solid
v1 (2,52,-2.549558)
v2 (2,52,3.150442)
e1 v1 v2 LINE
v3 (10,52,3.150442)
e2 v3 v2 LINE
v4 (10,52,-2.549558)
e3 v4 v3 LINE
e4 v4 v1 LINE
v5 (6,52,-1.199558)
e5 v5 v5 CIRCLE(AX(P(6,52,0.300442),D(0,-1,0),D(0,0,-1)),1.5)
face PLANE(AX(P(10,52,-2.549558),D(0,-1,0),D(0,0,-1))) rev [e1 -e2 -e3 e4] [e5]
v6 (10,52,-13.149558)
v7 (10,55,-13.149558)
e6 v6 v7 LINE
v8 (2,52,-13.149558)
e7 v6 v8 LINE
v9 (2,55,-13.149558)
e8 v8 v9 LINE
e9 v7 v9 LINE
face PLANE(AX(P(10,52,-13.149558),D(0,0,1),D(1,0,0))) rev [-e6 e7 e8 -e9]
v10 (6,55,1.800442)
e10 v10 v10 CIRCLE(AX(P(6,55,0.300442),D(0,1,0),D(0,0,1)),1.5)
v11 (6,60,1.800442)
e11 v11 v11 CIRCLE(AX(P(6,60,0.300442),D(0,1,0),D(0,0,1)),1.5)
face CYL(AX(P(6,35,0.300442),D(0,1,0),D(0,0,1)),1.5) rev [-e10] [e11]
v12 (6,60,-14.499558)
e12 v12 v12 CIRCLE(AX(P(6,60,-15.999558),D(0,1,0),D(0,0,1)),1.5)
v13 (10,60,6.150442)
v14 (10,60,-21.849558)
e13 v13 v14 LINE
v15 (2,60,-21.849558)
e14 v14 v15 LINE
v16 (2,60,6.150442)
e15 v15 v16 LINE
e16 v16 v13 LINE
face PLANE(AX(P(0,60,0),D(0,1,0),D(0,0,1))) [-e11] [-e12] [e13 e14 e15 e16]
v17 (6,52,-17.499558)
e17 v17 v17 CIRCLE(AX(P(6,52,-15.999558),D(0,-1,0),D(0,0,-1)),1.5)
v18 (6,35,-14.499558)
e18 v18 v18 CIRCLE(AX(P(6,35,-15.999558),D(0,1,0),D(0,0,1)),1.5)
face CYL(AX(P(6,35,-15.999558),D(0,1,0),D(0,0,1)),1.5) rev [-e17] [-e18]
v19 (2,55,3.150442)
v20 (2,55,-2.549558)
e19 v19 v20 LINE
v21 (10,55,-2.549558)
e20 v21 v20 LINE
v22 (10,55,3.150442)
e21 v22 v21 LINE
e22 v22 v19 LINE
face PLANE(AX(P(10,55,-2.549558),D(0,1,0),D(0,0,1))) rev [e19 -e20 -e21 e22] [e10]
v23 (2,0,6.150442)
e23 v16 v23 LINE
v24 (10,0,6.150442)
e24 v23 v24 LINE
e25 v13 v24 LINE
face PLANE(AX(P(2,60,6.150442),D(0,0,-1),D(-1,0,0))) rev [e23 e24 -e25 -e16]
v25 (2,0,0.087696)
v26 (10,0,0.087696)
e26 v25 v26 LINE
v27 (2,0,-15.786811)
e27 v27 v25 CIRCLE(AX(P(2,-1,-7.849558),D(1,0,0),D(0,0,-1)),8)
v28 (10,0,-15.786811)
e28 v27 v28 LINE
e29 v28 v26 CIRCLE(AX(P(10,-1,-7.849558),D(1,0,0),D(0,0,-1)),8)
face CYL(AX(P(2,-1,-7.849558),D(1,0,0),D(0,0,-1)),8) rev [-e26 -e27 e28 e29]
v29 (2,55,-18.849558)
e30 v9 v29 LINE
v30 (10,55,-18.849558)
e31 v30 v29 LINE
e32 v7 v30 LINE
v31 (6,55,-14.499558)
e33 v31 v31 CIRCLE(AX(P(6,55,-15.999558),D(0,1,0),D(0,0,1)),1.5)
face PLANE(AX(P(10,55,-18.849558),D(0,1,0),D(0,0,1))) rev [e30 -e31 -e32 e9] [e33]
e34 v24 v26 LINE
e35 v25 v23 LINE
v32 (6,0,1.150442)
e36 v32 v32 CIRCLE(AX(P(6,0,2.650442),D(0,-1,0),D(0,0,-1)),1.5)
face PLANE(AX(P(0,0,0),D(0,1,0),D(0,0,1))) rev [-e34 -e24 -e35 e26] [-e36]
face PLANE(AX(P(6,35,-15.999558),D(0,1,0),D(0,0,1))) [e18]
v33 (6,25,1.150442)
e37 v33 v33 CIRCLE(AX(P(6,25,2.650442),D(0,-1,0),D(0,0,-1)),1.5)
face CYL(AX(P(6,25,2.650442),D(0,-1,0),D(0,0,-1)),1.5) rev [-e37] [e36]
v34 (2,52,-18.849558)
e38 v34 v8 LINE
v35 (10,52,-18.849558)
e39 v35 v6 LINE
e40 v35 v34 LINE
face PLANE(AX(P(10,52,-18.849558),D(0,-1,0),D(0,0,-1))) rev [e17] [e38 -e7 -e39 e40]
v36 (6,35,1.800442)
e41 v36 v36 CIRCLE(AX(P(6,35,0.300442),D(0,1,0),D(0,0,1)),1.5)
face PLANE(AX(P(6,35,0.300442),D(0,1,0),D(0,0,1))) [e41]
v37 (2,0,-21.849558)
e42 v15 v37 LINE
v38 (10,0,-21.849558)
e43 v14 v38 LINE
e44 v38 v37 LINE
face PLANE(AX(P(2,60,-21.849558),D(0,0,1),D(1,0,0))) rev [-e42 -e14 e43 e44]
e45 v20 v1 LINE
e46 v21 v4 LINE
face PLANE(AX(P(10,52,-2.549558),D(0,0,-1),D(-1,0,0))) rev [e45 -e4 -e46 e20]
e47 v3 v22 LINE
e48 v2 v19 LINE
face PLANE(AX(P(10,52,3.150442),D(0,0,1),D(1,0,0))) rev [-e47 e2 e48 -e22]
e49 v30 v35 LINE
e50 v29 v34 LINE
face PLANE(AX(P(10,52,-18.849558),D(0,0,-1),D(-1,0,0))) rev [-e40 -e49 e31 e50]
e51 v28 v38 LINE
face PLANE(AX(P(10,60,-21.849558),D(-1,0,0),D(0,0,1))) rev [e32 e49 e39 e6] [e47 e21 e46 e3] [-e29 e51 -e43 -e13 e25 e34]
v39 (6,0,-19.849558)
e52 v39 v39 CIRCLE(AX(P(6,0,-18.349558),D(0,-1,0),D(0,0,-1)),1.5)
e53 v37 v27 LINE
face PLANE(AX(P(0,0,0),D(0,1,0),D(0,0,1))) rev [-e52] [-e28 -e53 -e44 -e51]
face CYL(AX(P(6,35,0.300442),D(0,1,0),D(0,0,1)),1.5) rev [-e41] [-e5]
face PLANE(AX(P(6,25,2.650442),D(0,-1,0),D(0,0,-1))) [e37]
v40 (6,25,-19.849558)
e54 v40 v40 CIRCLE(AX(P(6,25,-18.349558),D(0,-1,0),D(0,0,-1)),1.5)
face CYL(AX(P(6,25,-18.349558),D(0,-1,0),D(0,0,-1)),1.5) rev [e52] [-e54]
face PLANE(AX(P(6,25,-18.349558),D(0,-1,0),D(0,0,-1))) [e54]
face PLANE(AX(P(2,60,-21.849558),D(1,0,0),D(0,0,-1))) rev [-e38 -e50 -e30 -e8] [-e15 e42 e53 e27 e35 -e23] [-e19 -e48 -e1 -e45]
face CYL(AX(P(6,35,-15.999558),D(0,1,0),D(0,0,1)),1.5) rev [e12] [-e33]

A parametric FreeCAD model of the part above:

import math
import FreeCAD as App
import Part
import Sketcher

doc = App.newDocument("Part")
params = doc.addObject("Spreadsheet::Sheet", "Params")
for row, (alias, value) in enumerate([
    ("sketch1_width", "8 mm"),
    ("sketch1_height", "28 mm"),
    ("pad1_length", "60 mm"),
    ("sketch2_radius", "8 mm"),
    ("sketch3_diameter", "3 mm"),
    ("pocket2_length", "25 mm"),
    ("sketch4_width", "3 mm"),
    ("sketch4_height", "5.7 mm"),
    ("sketch5_diameter", "3 mm"),
    ("pocket4_length", "25 mm"),
], start=1):
    params.set(f"A{row}", alias)
    params.set(f"B{row}", "=" + value)
    params.setAlias(f"B{row}", alias)

body = doc.addObject("PartDesign::Body", "Body")

# Sketch on XZ plane
sketch1 = body.newObject("Sketcher::SketchObject", "Sketch")
sketch1.AttachmentSupport = (doc.getObject("XZ_Plane"), [""])
sketch1.MapMode = "FlatFace"
sketch1.addGeometry([
    Part.LineSegment(App.Vector(2, -22, 0), App.Vector(2, 6, 0)),
    Part.LineSegment(App.Vector(2, 6, 0), App.Vector(10, 6, 0)),
    Part.LineSegment(App.Vector(10, 6, 0), App.Vector(10, -22, 0)),
    Part.LineSegment(App.Vector(10, -22, 0), App.Vector(2, -22, 0)),
], False)
sketch1.addConstraint([
    Sketcher.Constraint("Coincident", 0, 2, 1, 1),
    Sketcher.Constraint("Coincident", 1, 2, 2, 1),
    Sketcher.Constraint("Coincident", 2, 2, 3, 1),
    Sketcher.Constraint("Coincident", 3, 2, 0, 1),
    Sketcher.Constraint("Vertical", 0),
    Sketcher.Constraint("Horizontal", 1),
    Sketcher.Constraint("Vertical", 2),
    Sketcher.Constraint("Horizontal", 3),
    Sketcher.Constraint("DistanceX", 1, 1, 1, 2, 8.0),
    Sketcher.Constraint("DistanceY", 0, 1, 0, 2, 28.0),
    Sketcher.Constraint("DistanceX", -1, 1, 0, 2, 2.0),
    Sketcher.Constraint("DistanceY", -1, 1, 0, 2, 6.150442),
])
sketch1.setExpression("Constraints[8]", "Params.sketch1_width")
sketch1.setExpression("Constraints[9]", "Params.sketch1_height")
pad1 = body.newObject("PartDesign::Pad", "Pad")
pad1.Profile = sketch1
pad1.setExpression("Length", "Params.pad1_length")
pad1.Reversed = True

# Sketch on YZ plane
sketch2 = body.newObject("Sketcher::SketchObject", "Sketch001")
sketch2.AttachmentSupport = (doc.getObject("YZ_Plane"), [""])
sketch2.MapMode = "FlatFace"
sketch2.AttachmentOffset = App.Placement(App.Vector(0, 0, 10), App.Rotation())
sketch2.addGeometry([
    Part.LineSegment(App.Vector(0, 0, 0), App.Vector(0, -16, 0)),
    Part.ArcOfCircle(Part.Circle(App.Vector(-1, -8, 0), App.Vector(0, 0, 1), 8), math.radians(-83), math.radians(83)),
], False)
sketch2.addConstraint([
    Sketcher.Constraint("Coincident", 0, 1, 1, 2),
    Sketcher.Constraint("Coincident", 1, 1, 0, 2),
    Sketcher.Constraint("Vertical", 0),
    Sketcher.Constraint("PointOnObject", 0, 1, -2),
    Sketcher.Constraint("Radius", 1, 8.0),
    Sketcher.Constraint("DistanceX", 1, 3, -1, 1, 1.0),
    Sketcher.Constraint("DistanceY", 1, 1, -1, 1, 15.786811),
])
sketch2.setExpression("Constraints[4]", "Params.sketch2_radius")
pocket1 = body.newObject("PartDesign::Pocket", "Pocket")
pocket1.Profile = sketch2
pocket1.Type = "ThroughAll"

# Sketch on XZ plane
sketch3 = body.newObject("Sketcher::SketchObject", "Sketch002")
sketch3.AttachmentSupport = (doc.getObject("XZ_Plane"), [""])
sketch3.MapMode = "FlatFace"
sketch3.addGeometry([
    Part.Circle(App.Vector(6, -18.3, 0), App.Vector(0, 0, 1), 1.5),
    Part.Circle(App.Vector(6, 2.7, 0), App.Vector(0, 0, 1), 1.5),
], False)
sketch3.addConstraint([
    Sketcher.Constraint("Equal", 0, 1),
    Sketcher.Constraint("Vertical", 0, 3, 1, 3),
    Sketcher.Constraint("Diameter", 0, 3.0),
    Sketcher.Constraint("DistanceX", -1, 1, 0, 3, 6.0),
    Sketcher.Constraint("DistanceY", 0, 3, 1, 3, 21.0),
    Sketcher.Constraint("DistanceY", 0, 3, -1, 1, 18.349558),
])
sketch3.setExpression("Constraints[2]", "Params.sketch3_diameter")
pocket2 = body.newObject("PartDesign::Pocket", "Pocket001")
pocket2.Profile = sketch3
pocket2.setExpression("Length", "Params.pocket2_length")

# Sketch on YZ plane
sketch4 = body.newObject("Sketcher::SketchObject", "Sketch003")
sketch4.AttachmentSupport = (doc.getObject("YZ_Plane"), [""])
sketch4.MapMode = "FlatFace"
sketch4.AttachmentOffset = App.Placement(App.Vector(0, 0, 2), App.Rotation())
sketch4.addGeometry([
    Part.LineSegment(App.Vector(55, -18.8, 0), App.Vector(52, -18.8, 0)),  # 0
    Part.LineSegment(App.Vector(52, -18.8, 0), App.Vector(52, -13.1, 0)),  # 1
    Part.LineSegment(App.Vector(52, -13.1, 0), App.Vector(55, -13.1, 0)),  # 2
    Part.LineSegment(App.Vector(55, -13.1, 0), App.Vector(55, -18.8, 0)),  # 3
    Part.LineSegment(App.Vector(55, -2.5, 0), App.Vector(52, -2.5, 0)),  # 4
    Part.LineSegment(App.Vector(52, -2.5, 0), App.Vector(52, 3.2, 0)),  # 5
    Part.LineSegment(App.Vector(52, 3.2, 0), App.Vector(55, 3.2, 0)),  # 6
    Part.LineSegment(App.Vector(55, 3.2, 0), App.Vector(55, -2.5, 0)),  # 7
], False)
sketch4.addConstraint([
    Sketcher.Constraint("Coincident", 0, 2, 1, 1),
    Sketcher.Constraint("Coincident", 1, 2, 2, 1),
    Sketcher.Constraint("Coincident", 2, 2, 3, 1),
    Sketcher.Constraint("Coincident", 3, 2, 0, 1),
    Sketcher.Constraint("Coincident", 4, 2, 5, 1),
    Sketcher.Constraint("Coincident", 5, 2, 6, 1),
    Sketcher.Constraint("Coincident", 6, 2, 7, 1),
    Sketcher.Constraint("Coincident", 7, 2, 4, 1),
    Sketcher.Constraint("Horizontal", 0),
    Sketcher.Constraint("Vertical", 1),
    Sketcher.Constraint("Horizontal", 2),
    Sketcher.Constraint("Vertical", 3),
    Sketcher.Constraint("Horizontal", 4),
    Sketcher.Constraint("Vertical", 5),
    Sketcher.Constraint("Horizontal", 6),
    Sketcher.Constraint("Vertical", 7),
    Sketcher.Constraint("Vertical", 1, 2, 4, 2),
    Sketcher.Constraint("Vertical", 3, 2, 6, 2),
    Sketcher.Constraint("Equal", 3, 5),
    Sketcher.Constraint("DistanceX", 0, 2, 0, 1, 3.0),
    Sketcher.Constraint("DistanceY", 1, 1, 1, 2, 5.7),
    Sketcher.Constraint("DistanceX", -1, 1, 0, 2, 52.0),
    Sketcher.Constraint("DistanceY", 0, 2, 5, 2, 22.0),
    Sketcher.Constraint("DistanceY", 0, 2, -1, 1, 18.849558),
])
sketch4.setExpression("Constraints[19]", "Params.sketch4_width")
sketch4.setExpression("Constraints[20]", "Params.sketch4_height")
pocket3 = body.newObject("PartDesign::Pocket", "Pocket002")
pocket3.Profile = sketch4
pocket3.Type = "ThroughAll"
pocket3.Reversed = True

# Sketch on XZ plane
sketch5 = body.newObject("Sketcher::SketchObject", "Sketch004")
sketch5.AttachmentSupport = (doc.getObject("XZ_Plane"), [""])
sketch5.MapMode = "FlatFace"
sketch5.AttachmentOffset = App.Placement(App.Vector(0, 0, -60), App.Rotation())
sketch5.addGeometry([
    Part.Circle(App.Vector(6, -16, 0), App.Vector(0, 0, 1), 1.5),
    Part.Circle(App.Vector(6, 0.3, 0), App.Vector(0, 0, 1), 1.5),
], False)
sketch5.addConstraint([
    Sketcher.Constraint("Equal", 0, 1),
    Sketcher.Constraint("Vertical", 0, 3, 1, 3),
    Sketcher.Constraint("Diameter", 0, 3.0),
    Sketcher.Constraint("DistanceX", -1, 1, 0, 3, 6.0),
    Sketcher.Constraint("DistanceY", 0, 3, 1, 3, 16.3),
    Sketcher.Constraint("DistanceY", 0, 3, -1, 1, 15.999558),
])
sketch5.setExpression("Constraints[2]", "Params.sketch5_diameter")
pocket4 = body.newObject("PartDesign::Pocket", "Pocket003")
pocket4.Profile = sketch5
pocket4.setExpression("Length", "Params.pocket4_length")
pocket4.Reversed = True

doc.recompute()
